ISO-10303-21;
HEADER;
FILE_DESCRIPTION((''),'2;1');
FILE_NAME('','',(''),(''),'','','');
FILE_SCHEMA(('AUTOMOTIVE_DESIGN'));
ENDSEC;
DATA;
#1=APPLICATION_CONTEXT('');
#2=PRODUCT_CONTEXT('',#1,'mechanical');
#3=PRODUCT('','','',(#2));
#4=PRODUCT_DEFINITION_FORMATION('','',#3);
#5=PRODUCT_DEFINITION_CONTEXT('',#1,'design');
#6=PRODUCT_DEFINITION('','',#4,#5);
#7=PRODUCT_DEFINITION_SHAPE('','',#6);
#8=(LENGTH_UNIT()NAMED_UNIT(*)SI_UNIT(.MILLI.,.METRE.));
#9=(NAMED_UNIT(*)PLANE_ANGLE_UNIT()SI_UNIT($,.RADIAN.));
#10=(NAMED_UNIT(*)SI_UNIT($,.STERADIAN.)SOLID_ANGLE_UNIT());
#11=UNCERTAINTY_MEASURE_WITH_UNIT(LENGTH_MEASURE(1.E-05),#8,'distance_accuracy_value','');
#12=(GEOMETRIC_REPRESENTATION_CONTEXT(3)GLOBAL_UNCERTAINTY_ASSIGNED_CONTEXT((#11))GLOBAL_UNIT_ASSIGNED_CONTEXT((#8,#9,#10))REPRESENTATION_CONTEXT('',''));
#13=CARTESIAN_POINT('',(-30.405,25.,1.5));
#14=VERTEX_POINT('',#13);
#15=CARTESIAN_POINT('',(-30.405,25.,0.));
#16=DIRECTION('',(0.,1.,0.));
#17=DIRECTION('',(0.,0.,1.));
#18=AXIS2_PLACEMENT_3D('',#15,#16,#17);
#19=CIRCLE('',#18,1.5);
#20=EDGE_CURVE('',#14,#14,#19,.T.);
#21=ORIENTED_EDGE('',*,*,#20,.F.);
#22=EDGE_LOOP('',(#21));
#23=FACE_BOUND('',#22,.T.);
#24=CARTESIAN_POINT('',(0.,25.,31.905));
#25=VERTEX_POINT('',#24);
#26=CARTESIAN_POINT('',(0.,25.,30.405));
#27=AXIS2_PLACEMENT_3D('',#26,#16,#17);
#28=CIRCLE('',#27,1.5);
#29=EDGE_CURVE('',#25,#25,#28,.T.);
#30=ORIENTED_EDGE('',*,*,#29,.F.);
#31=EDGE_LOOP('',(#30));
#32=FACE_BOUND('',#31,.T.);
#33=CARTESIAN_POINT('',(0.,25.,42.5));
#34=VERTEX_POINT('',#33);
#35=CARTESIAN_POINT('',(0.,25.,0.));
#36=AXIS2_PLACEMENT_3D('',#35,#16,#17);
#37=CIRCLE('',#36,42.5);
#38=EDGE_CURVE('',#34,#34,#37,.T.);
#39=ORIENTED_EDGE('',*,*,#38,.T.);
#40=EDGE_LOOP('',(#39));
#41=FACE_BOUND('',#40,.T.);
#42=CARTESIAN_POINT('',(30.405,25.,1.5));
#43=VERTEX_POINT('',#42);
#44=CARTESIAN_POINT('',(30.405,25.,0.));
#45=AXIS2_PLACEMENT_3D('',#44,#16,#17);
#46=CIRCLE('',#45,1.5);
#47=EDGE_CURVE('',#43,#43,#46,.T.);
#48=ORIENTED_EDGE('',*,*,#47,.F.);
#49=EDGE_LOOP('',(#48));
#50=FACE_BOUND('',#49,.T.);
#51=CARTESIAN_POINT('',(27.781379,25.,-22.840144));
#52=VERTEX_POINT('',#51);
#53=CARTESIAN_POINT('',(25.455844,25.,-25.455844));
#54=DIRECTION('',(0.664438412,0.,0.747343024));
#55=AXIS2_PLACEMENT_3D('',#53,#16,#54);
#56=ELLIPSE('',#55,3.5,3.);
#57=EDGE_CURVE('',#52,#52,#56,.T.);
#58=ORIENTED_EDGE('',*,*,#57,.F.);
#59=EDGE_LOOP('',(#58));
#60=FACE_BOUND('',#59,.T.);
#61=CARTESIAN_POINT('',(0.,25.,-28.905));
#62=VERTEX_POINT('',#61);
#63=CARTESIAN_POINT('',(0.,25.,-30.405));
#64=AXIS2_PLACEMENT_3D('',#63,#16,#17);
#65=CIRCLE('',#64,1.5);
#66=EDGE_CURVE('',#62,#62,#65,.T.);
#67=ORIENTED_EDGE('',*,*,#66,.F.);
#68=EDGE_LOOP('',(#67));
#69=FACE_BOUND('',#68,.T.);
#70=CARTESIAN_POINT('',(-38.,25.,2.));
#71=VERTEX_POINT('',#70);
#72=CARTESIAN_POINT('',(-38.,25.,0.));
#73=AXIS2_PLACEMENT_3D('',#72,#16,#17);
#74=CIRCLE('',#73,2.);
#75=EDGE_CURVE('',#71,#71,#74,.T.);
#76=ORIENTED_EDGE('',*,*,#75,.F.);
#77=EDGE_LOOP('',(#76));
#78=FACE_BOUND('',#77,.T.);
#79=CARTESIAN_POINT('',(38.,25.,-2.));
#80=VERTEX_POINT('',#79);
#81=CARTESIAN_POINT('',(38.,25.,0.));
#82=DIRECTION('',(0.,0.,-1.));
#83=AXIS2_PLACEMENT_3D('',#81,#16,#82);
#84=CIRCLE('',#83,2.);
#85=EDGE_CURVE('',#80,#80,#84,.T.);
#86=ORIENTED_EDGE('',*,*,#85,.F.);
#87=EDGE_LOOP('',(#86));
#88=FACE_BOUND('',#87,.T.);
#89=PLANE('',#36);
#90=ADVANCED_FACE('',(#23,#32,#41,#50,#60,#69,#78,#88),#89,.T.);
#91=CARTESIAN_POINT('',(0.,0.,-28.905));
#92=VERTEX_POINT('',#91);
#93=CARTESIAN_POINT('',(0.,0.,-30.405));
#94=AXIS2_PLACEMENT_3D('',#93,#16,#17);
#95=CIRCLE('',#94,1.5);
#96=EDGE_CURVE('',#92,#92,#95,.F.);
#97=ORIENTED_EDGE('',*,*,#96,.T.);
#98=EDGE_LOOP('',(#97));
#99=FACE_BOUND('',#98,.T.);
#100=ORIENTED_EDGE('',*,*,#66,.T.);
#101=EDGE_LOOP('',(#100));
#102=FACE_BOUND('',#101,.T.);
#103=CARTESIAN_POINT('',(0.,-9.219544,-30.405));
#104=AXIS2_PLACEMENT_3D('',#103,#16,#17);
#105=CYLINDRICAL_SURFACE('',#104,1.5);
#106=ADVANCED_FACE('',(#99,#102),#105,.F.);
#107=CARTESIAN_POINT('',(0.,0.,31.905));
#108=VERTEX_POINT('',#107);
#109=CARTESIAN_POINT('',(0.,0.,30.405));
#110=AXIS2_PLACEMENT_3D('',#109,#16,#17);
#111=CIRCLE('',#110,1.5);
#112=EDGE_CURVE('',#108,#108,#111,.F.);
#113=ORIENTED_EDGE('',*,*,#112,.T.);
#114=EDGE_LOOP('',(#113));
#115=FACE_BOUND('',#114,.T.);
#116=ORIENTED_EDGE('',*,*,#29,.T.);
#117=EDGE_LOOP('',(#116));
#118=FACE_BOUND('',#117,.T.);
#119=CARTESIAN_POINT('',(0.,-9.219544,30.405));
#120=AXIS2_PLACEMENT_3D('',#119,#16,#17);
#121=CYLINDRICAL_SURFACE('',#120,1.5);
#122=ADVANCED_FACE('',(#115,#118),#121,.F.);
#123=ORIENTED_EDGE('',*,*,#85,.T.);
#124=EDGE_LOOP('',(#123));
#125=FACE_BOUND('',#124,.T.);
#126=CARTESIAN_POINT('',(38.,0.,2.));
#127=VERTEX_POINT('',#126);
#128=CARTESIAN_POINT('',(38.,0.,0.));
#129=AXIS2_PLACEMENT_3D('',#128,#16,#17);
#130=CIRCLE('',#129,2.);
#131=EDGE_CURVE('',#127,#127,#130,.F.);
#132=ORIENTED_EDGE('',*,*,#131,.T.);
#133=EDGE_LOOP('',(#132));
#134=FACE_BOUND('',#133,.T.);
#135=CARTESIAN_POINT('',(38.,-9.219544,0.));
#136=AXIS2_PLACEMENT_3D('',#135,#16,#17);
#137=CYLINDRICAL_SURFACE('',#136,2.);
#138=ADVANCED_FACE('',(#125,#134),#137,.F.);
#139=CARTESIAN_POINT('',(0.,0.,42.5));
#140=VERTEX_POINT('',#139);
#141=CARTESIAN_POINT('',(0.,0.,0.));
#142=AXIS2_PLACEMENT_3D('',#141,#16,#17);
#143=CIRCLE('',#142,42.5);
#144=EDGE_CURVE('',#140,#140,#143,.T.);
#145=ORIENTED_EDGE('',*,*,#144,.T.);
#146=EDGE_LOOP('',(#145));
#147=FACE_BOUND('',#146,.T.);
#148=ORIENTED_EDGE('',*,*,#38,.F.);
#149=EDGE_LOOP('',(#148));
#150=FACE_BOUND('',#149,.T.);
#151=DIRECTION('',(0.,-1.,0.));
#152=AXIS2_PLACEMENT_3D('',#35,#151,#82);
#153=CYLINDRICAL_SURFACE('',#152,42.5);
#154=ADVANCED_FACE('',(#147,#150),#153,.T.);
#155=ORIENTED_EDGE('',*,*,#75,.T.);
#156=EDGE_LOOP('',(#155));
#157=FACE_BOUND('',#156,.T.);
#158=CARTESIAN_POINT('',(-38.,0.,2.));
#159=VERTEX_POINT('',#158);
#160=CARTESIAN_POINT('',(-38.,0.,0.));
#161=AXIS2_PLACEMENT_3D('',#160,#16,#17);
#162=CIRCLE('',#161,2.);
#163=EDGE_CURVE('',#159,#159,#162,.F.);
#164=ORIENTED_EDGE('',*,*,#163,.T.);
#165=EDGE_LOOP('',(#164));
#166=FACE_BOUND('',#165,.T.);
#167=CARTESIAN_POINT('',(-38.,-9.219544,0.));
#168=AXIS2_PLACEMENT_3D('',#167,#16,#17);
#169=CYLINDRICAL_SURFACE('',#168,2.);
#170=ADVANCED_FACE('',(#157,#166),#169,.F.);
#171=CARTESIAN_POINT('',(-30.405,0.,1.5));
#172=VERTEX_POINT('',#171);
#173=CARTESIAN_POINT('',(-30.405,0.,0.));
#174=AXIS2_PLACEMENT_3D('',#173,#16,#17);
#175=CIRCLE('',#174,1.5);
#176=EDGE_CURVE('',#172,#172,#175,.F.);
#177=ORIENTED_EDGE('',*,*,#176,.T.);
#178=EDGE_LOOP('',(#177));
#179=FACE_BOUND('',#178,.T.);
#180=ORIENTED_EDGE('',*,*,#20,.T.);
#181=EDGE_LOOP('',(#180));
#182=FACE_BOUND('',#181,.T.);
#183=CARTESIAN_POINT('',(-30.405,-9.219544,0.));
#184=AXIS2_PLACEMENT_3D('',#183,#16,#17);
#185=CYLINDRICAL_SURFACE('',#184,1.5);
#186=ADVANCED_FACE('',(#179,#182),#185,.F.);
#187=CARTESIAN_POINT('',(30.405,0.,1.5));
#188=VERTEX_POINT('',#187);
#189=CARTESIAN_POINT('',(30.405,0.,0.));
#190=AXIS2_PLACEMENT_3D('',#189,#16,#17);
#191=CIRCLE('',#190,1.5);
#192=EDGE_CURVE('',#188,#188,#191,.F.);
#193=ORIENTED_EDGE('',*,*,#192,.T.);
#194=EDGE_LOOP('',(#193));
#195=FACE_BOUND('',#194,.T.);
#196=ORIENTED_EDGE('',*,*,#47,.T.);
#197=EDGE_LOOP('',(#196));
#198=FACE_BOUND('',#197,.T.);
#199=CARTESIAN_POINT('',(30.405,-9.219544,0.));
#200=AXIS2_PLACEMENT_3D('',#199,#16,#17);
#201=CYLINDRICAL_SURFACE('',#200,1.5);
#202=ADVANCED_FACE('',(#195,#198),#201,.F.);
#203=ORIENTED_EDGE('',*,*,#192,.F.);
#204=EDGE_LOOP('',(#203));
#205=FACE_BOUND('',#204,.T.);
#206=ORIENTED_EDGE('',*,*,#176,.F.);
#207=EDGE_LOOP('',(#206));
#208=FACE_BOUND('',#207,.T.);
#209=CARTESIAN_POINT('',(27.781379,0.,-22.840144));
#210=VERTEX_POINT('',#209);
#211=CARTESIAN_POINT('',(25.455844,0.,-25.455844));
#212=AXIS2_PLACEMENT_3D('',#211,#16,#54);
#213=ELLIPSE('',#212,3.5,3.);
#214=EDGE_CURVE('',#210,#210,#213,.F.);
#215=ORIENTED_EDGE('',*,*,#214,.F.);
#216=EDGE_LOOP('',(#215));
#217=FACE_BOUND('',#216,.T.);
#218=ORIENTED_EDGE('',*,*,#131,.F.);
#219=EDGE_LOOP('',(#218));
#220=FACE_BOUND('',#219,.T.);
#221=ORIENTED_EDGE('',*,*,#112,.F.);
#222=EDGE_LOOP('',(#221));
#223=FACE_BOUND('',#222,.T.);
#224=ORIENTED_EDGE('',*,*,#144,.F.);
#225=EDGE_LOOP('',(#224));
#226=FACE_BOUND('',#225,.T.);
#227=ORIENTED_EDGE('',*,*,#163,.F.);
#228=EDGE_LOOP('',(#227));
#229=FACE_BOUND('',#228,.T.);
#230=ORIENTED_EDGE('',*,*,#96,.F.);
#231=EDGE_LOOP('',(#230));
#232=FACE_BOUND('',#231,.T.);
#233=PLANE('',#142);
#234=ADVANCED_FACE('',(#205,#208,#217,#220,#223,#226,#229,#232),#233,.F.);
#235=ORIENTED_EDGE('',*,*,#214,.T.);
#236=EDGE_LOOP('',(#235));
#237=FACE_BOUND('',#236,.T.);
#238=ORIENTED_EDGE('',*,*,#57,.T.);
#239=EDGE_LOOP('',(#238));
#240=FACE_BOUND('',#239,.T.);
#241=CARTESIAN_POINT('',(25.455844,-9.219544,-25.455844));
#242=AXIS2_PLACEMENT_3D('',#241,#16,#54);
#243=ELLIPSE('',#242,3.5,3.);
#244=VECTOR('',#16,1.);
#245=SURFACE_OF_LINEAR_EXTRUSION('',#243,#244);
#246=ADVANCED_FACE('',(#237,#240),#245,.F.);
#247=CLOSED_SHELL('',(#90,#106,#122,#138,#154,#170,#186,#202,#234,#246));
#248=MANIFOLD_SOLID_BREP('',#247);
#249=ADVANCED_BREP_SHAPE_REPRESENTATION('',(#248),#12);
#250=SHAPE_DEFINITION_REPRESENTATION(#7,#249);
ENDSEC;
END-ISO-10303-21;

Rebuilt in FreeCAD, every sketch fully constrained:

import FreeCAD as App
import Part
import Sketcher
from FreeCAD import Vector
Q = App.Units.Quantity

doc = App.newDocument("Part")
body = doc.addObject("PartDesign::Body", "Body")

# Sketch on XZ plane
sketch1 = body.newObject("Sketcher::SketchObject", "Sketch")
sketch1.AttachmentSupport = (doc.getObject("XZ_Plane"), [""])
sketch1.MapMode = "FlatFace"
sketch1.addGeometry(Part.Circle(Vector(0, 0, 0), Vector(0, 0, 1), 42.5), False)
sketch1.addConstraint([
    Sketcher.Constraint("Coincident", 0, 3, -1, 1),
    Sketcher.Constraint("Diameter", 0, Q("85 mm")),
])
pad1 = body.newObject("PartDesign::Pad", "Pad")
pad1.Profile = sketch1
pad1.Length = 25
pad1.Reversed = True

# Sketch on XZ plane
sketch2 = body.newObject("Sketcher::SketchObject", "Sketch001")
sketch2.AttachmentSupport = (doc.getObject("XZ_Plane"), [""])
sketch2.MapMode = "FlatFace"
sketch2.AttachmentOffset = App.Placement(Vector(0, 0, -25), App.Rotation())
sketch2.addGeometry([
    Part.Circle(Vector(0, -30.405, 0), Vector(0, 0, 1), 1.5),  # 0
    Part.Circle(Vector(30.405, 0, 0), Vector(0, 0, 1), 1.5),  # 1
    Part.Circle(Vector(0, 30.405, 0), Vector(0, 0, 1), 1.5),  # 2
    Part.Circle(Vector(-30.405, 0, 0), Vector(0, 0, 1), 1.5),  # 3
    Part.Circle(Vector(-38, 0, 0), Vector(0, 0, 1), 2),  # 4
    Part.Circle(Vector(38, 0, 0), Vector(0, 0, 1), 2),  # 5
    Part.Ellipse(Vector(27.781379, -22.840144, 0), Vector(23.213815, -23.462529, 0), Vector(25.455844, -25.455844, 0)),  # 6
], False)
sketch2.addConstraint([
    Sketcher.Constraint("Block", 6),
    Sketcher.Constraint("Equal", 0, 1),
    Sketcher.Constraint("Equal", 1, 2),
    Sketcher.Constraint("Equal", 2, 3),
    Sketcher.Constraint("Equal", 4, 5),
    Sketcher.Constraint("Symmetric", 0, 3, 2, 3, -1, 1),
    Sketcher.Constraint("Symmetric", 1, 3, 3, 3, -1, 1),
    Sketcher.Constraint("Symmetric", 4, 3, 5, 3, -1, 1),
    Sketcher.Constraint("PointOnObject", 0, 3, -2),
    Sketcher.Constraint("PointOnObject", 1, 3, -1),
    Sketcher.Constraint("PointOnObject", 4, 3, -1),
    Sketcher.Constraint("Diameter", 0, Q("3 mm")),
    Sketcher.Constraint("Diameter", 4, Q("4 mm")),
    Sketcher.Constraint("DistanceX", 4, 3, -1, 1, Q("38 mm")),
    Sketcher.Constraint("DistanceY", 0, 3, 2, 3, Q("60.81 mm")),
    Sketcher.Constraint("DistanceX", 3, 3, 1, 3, Q("60.81 mm")),
])
pocket1 = body.newObject("PartDesign::Pocket", "Pocket")
pocket1.Profile = sketch2
pocket1.Length = 25
pocket1.Reversed = True

doc.recompute()
